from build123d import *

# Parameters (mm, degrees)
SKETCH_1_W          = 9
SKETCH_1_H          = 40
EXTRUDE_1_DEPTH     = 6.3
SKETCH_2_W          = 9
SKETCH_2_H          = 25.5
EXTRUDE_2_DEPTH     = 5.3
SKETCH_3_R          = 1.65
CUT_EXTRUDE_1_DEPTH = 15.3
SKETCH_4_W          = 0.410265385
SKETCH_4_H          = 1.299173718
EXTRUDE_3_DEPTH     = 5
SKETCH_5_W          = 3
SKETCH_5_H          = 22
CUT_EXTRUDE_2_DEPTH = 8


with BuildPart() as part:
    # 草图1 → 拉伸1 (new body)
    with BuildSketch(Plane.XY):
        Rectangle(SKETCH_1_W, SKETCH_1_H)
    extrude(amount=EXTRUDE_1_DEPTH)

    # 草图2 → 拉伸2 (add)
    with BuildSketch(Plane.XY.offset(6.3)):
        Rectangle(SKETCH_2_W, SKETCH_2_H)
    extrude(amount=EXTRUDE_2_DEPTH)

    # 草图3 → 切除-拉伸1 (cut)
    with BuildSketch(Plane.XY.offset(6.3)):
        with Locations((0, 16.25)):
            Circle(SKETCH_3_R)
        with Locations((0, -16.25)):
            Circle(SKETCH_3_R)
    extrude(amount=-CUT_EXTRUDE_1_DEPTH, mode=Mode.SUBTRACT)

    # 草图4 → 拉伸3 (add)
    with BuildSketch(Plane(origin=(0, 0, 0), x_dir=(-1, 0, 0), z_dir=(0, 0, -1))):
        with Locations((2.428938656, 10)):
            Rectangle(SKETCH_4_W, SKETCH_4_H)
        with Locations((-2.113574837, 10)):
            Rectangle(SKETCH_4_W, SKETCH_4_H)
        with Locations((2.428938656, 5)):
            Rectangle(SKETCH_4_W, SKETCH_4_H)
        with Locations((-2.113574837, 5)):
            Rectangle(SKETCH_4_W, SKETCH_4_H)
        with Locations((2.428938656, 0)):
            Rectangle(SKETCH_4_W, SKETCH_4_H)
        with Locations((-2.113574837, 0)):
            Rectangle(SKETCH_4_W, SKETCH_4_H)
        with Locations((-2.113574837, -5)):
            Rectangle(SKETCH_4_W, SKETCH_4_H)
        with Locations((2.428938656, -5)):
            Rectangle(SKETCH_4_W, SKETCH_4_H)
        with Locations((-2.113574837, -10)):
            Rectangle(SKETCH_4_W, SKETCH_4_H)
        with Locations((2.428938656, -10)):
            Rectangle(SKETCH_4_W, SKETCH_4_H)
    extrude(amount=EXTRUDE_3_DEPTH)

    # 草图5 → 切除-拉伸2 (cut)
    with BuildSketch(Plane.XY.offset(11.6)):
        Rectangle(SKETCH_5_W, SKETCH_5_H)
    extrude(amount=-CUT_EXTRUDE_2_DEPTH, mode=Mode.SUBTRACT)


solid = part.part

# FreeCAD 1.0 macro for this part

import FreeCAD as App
import Part
import Sketcher
Q = App.Units.Quantity

doc = App.newDocument("Part")
body = doc.addObject("PartDesign::Body", "Body")

sketch1 = body.newObject("Sketcher::SketchObject", "Sketch")
sketch1.AttachmentSupport = (doc.getObject("XY_Plane"), [""])
sketch1.MapMode = "FlatFace"
sketch1.addGeometry([
    Part.LineSegment(App.Vector(-4, 20, 0), App.Vector(-4, -20, 0)),
    Part.LineSegment(App.Vector(-4, -20, 0), App.Vector(4, -20, 0)),
    Part.LineSegment(App.Vector(4, -20, 0), App.Vector(4, 20, 0)),
    Part.LineSegment(App.Vector(4, 20, 0), App.Vector(-4, 20, 0)),
], False)
sketch1.addConstraint([
    Sketcher.Constraint("Coincident", 0, 2, 1, 1),
    Sketcher.Constraint("Coincident", 1, 2, 2, 1),
    Sketcher.Constraint("Coincident", 2, 2, 3, 1),
    Sketcher.Constraint("Coincident", 3, 2, 0, 1),
    Sketcher.Constraint("Vertical", 0),
    Sketcher.Constraint("Horizontal", 1),
    Sketcher.Constraint("Vertical", 2),
    Sketcher.Constraint("Horizontal", 3),
    Sketcher.Constraint("Symmetric", 0, 2, 2, 2, -1, 1),
    Sketcher.Constraint("DistanceX", 1, 1, 1, 2, Q("9 mm")),
    Sketcher.Constraint("DistanceY", 0, 2, 0, 1, Q("40 mm")),
])
pad1 = body.newObject("PartDesign::Pad", "Pad")
pad1.Profile = sketch1
pad1.Length = 6.3

sketch2 = body.newObject("Sketcher::SketchObject", "Sketch001")
sketch2.AttachmentSupport = (doc.getObject("XY_Plane"), [""])
sketch2.MapMode = "FlatFace"
sketch2.AttachmentOffset = App.Placement(App.Vector(0, 0, 6.3), App.Rotation())
sketch2.addGeometry([
    Part.LineSegment(App.Vector(-4, 13, 0), App.Vector(-4, -13, 0)),
    Part.LineSegment(App.Vector(-4, -13, 0), App.Vector(4, -13, 0)),
    Part.LineSegment(App.Vector(4, -13, 0), App.Vector(4, 13, 0)),
    Part.LineSegment(App.Vector(4, 13, 0), App.Vector(-4, 13, 0)),
], False)
sketch2.addConstraint([
    Sketcher.Constraint("Coincident", 0, 2, 1, 1),
    Sketcher.Constraint("Coincident", 1, 2, 2, 1),
    Sketcher.Constraint("Coincident", 2, 2, 3, 1),
    Sketcher.Constraint("Coincident", 3, 2, 0, 1),
    Sketcher.Constraint("Vertical", 0),
    Sketcher.Constraint("Horizontal", 1),
    Sketcher.Constraint("Vertical", 2),
    Sketcher.Constraint("Horizontal", 3),
    Sketcher.Constraint("Symmetric", 0, 2, 2, 2, -1, 1),
    Sketcher.Constraint("DistanceX", 1, 1, 1, 2, Q("9 mm")),
    Sketcher.Constraint("DistanceY", 0, 2, 0, 1, Q("25.5 mm")),
])
pad2 = body.newObject("PartDesign::Pad", "Pad001")
pad2.Profile = sketch2
pad2.Length = 5.3

sketch3 = body.newObject("Sketcher::SketchObject", "Sketch002")
sketch3.AttachmentSupport = (doc.getObject("XY_Plane"), [""])
sketch3.MapMode = "FlatFace"
sketch3.AttachmentOffset = App.Placement(App.Vector(0, 0, 6.3), App.Rotation())
sketch3.addGeometry([
    Part.Circle(App.Vector(0, 16.2, 0), App.Vector(0, 0, 1), 1.6),
    Part.Circle(App.Vector(0, -16.2, 0), App.Vector(0, 0, 1), 1.6),
], False)
sketch3.addConstraint([
    Sketcher.Constraint("Equal", 0, 1),
    Sketcher.Constraint("Symmetric", 0, 3, 1, 3, -1, 1),
    Sketcher.Constraint("PointOnObject", 0, 3, -2),
    Sketcher.Constraint("Diameter", 0, Q("3.3 mm")),
    Sketcher.Constraint("DistanceY", 1, 3, 0, 3, Q("32.5 mm")),
])
pocket1 = body.newObject("PartDesign::Pocket", "Pocket")
pocket1.Profile = sketch3
pocket1.Length = 15.3

sketch4 = body.newObject("Sketcher::SketchObject", "Sketch003")
sketch4.AttachmentSupport = (doc.getObject("XY_Plane"), [""])
sketch4.MapMode = "FlatFace"
sketch4.addGeometry([
    Part.LineSegment(App.Vector(-2.22, 10.65, 0), App.Vector(-2.22, 9.35, 0)),
    Part.LineSegment(App.Vector(-2.22, 9.35, 0), App.Vector(-2.63, 9.35, 0)),
    Part.LineSegment(App.Vector(-2.63, 9.35, 0), App.Vector(-2.63, 10.65, 0)),
    Part.LineSegment(App.Vector(-2.63, 10.65, 0), App.Vector(-2.22, 10.65, 0)),
    Part.LineSegment(App.Vector(2.32, 10.65, 0), App.Vector(2.32, 9.35, 0)),
    Part.LineSegment(App.Vector(2.32, 9.35, 0), App.Vector(1.91, 9.35, 0)),
    Part.LineSegment(App.Vector(1.91, 9.35, 0), App.Vector(1.91, 10.65, 0)),
    Part.LineSegment(App.Vector(1.91, 10.65, 0), App.Vector(2.32, 10.65, 0)),
    Part.LineSegment(App.Vector(-2.22, 5.65, 0), App.Vector(-2.22, 4.35, 0)),
    Part.LineSegment(App.Vector(-2.22, 4.35, 0), App.Vector(-2.63, 4.35, 0)),
    Part.LineSegment(App.Vector(-2.63, 4.35, 0), App.Vector(-2.63, 5.65, 0)),
    Part.LineSegment(App.Vector(-2.63, 5.65, 0), App.Vector(-2.22, 5.65, 0)),
    Part.LineSegment(App.Vector(2.32, 5.65, 0), App.Vector(2.32, 4.35, 0)),
    Part.LineSegment(App.Vector(2.32, 4.35, 0), App.Vector(1.91, 4.35, 0)),
    Part.LineSegment(App.Vector(1.91, 4.35, 0), App.Vector(1.91, 5.65, 0)),
    Part.LineSegment(App.Vector(1.91, 5.65, 0), App.Vector(2.32, 5.65, 0)),
    Part.LineSegment(App.Vector(-2.22, 0.65, 0), App.Vector(-2.22, -0.65, 0)),
    Part.LineSegment(App.Vector(-2.22, -0.65, 0), App.Vector(-2.63, -0.65, 0)),
    Part.LineSegment(App.Vector(-2.63, -0.65, 0), App.Vector(-2.63, 0.65, 0)),
    Part.LineSegment(App.Vector(-2.63, 0.65, 0), App.Vector(-2.22, 0.65, 0)),
    Part.LineSegment(App.Vector(2.32, 0.65, 0), App.Vector(2.32, -0.65, 0)),
    Part.LineSegment(App.Vector(2.32, -0.65, 0), App.Vector(1.91, -0.65, 0)),
    Part.LineSegment(App.Vector(1.91, -0.65, 0), App.Vector(1.91, 0.65, 0)),
    Part.LineSegment(App.Vector(1.91, 0.65, 0), App.Vector(2.32, 0.65, 0)),
    Part.LineSegment(App.Vector(2.32, -4.35, 0), App.Vector(2.32, -5.65, 0)),
    Part.LineSegment(App.Vector(2.32, -5.65, 0), App.Vector(1.91, -5.65, 0)),
    Part.LineSegment(App.Vector(1.91, -5.65, 0), App.Vector(1.91, -4.35, 0)),
    Part.LineSegment(App.Vector(1.91, -4.35, 0), App.Vector(2.32, -4.35, 0)),
    Part.LineSegment(App.Vector(-2.22, -4.35, 0), App.Vector(-2.22, -5.65, 0)),
    Part.LineSegment(App.Vector(-2.22, -5.65, 0), App.Vector(-2.63, -5.65, 0)),
    Part.LineSegment(App.Vector(-2.63, -5.65, 0), App.Vector(-2.63, -4.35, 0)),
    Part.LineSegment(App.Vector(-2.63, -4.35, 0), App.Vector(-2.22, -4.35, 0)),
    Part.LineSegment(App.Vector(2.32, -9.35, 0), App.Vector(2.32, -10.65, 0)),
    Part.LineSegment(App.Vector(2.32, -10.65, 0), App.Vector(1.91, -10.65, 0)),
    Part.LineSegment(App.Vector(1.91, -10.65, 0), App.Vector(1.91, -9.35, 0)),
    Part.LineSegment(App.Vector(1.91, -9.35, 0), App.Vector(2.32, -9.35, 0)),
    Part.LineSegment(App.Vector(-2.22, -9.35, 0), App.Vector(-2.22, -10.65, 0)),
    Part.LineSegment(App.Vector(-2.22, -10.65, 0), App.Vector(-2.63, -10.65, 0)),
    Part.LineSegment(App.Vector(-2.63, -10.65, 0), App.Vector(-2.63, -9.35, 0)),
    Part.LineSegment(App.Vector(-2.63, -9.35, 0), App.Vector(-2.22, -9.35, 0)),
], False)
sketch4.addConstraint([
    Sketcher.Constraint("Coincident", 0, 2, 1, 1),
    Sketcher.Constraint("Coincident", 1, 2, 2, 1),
    Sketcher.Constraint("Coincident", 2, 2, 3, 1),
    Sketcher.Constraint("Coincident", 3, 2, 0, 1),
    Sketcher.Constraint("Coincident", 4, 2, 5, 1),
    Sketcher.Constraint("Coincident", 5, 2, 6, 1),
    Sketcher.Constraint("Coincident", 6, 2, 7, 1),
    Sketcher.Constraint("Coincident", 7, 2, 4, 1),
    Sketcher.Constraint("Coincident", 8, 2, 9, 1),
    Sketcher.Constraint("Coincident", 9, 2, 10, 1),
    Sketcher.Constraint("Coincident", 10, 2, 11, 1),
    Sketcher.Constraint("Coincident", 11, 2, 8, 1),
    Sketcher.Constraint("Coincident", 12, 2, 13, 1),
    Sketcher.Constraint("Coincident", 13, 2, 14, 1),
    Sketcher.Constraint("Coincident", 14, 2, 15, 1),
    Sketcher.Constraint("Coincident", 15, 2, 12, 1),
    Sketcher.Constraint("Coincident", 16, 2, 17, 1),
    Sketcher.Constraint("Coincident", 17, 2, 18, 1),
    Sketcher.Constraint("Coincident", 18, 2, 19, 1),
    Sketcher.Constraint("Coincident", 19, 2, 16, 1),
    Sketcher.Constraint("Coincident", 20, 2, 21, 1),
    Sketcher.Constraint("Coincident", 21, 2, 22, 1),
    Sketcher.Constraint("Coincident", 22, 2, 23, 1),
    Sketcher.Constraint("Coincident", 23, 2, 20, 1),
    Sketcher.Constraint("Coincident", 24, 2, 25, 1),
    Sketcher.Constraint("Coincident", 25, 2, 26, 1),
    Sketcher.Constraint("Coincident", 26, 2, 27, 1),
    Sketcher.Constraint("Coincident", 27, 2, 24, 1),
    Sketcher.Constraint("Coincident", 28, 2, 29, 1),
    Sketcher.Constraint("Coincident", 29, 2, 30, 1),
    Sketcher.Constraint("Coincident", 30, 2, 31, 1),
    Sketcher.Constraint("Coincident", 31, 2, 28, 1),
    Sketcher.Constraint("Coincident", 32, 2, 33, 1),
    Sketcher.Constraint("Coincident", 33, 2, 34, 1),
    Sketcher.Constraint("Coincident", 34, 2, 35, 1),
    Sketcher.Constraint("Coincident", 35, 2, 32, 1),
    Sketcher.Constraint("Coincident", 36, 2, 37, 1),
    Sketcher.Constraint("Coincident", 37, 2, 38, 1),
    Sketcher.Constraint("Coincident", 38, 2, 39, 1),
    Sketcher.Constraint("Coincident", 39, 2, 36, 1),
    Sketcher.Constraint("Vertical", 0),
    Sketcher.Constraint("Horizontal", 1),
    Sketcher.Constraint("Vertical", 2),
    Sketcher.Constraint("Horizontal", 3),
    Sketcher.Constraint("Vertical", 4),
    Sketcher.Constraint("Horizontal", 5),
    Sketcher.Constraint("Vertical", 6),
    Sketcher.Constraint("Horizontal", 7),
    Sketcher.Constraint("Vertical", 8),
    Sketcher.Constraint("Horizontal", 9),
    Sketcher.Constraint("Vertical", 10),
    Sketcher.Constraint("Horizontal", 11),
    Sketcher.Constraint("Vertical", 12),
    Sketcher.Constraint("Horizontal", 13),
    Sketcher.Constraint("Vertical", 14),
    Sketcher.Constraint("Horizontal", 15),
    Sketcher.Constraint("Vertical", 16),
    Sketcher.Constraint("Horizontal", 17),
    Sketcher.Constraint("Vertical", 18),
    Sketcher.Constraint("Horizontal", 19),
    Sketcher.Constraint("Vertical", 20),
    Sketcher.Constraint("Horizontal", 21),
    Sketcher.Constraint("Vertical", 22),
    Sketcher.Constraint("Horizontal", 23),
    Sketcher.Constraint("Vertical", 24),
    Sketcher.Constraint("Horizontal", 25),
    Sketcher.Constraint("Vertical", 26),
    Sketcher.Constraint("Horizontal", 27),
    Sketcher.Constraint("Vertical", 28),
    Sketcher.Constraint("Horizontal", 29),
    Sketcher.Constraint("Vertical", 30),
    Sketcher.Constraint("Horizontal", 31),
    Sketcher.Constraint("Vertical", 32),
    Sketcher.Constraint("Horizontal", 33),
    Sketcher.Constraint("Vertical", 34),
    Sketcher.Constraint("Horizontal", 35),
    Sketcher.Constraint("Vertical", 36),
    Sketcher.Constraint("Horizontal", 37),
    Sketcher.Constraint("Vertical", 38),
    Sketcher.Constraint("Horizontal", 39),
    Sketcher.Constraint("Symmetric", 15, 2, 24, 2, -1),
    Sketcher.Constraint("Symmetric", 13, 2, 26, 2, -1),
    Sketcher.Constraint("Symmetric", 11, 2, 28, 2, -1),
    Sketcher.Constraint("Symmetric", 9, 2, 30, 2, -1),
    Sketcher.Constraint("Symmetric", 7, 2, 32, 2, -1),
    Sketcher.Constraint("Symmetric", 5, 2, 34, 2, -1),
    Sketcher.Constraint("Symmetric", 3, 2, 36, 2, -1),
    Sketcher.Constraint("Symmetric", 1, 2, 38, 2, -1),
    Sketcher.Constraint("Horizontal", 1, 2, 4, 2),
    Sketcher.Constraint("Horizontal", 3, 2, 6, 2),
    Sketcher.Constraint("Horizontal", 9, 2, 12, 2),
    Sketcher.Constraint("Horizontal", 11, 2, 14, 2),
    Sketcher.Constraint("Horizontal", 17, 2, 20, 2),
    Sketcher.Constraint("Horizontal", 19, 2, 22, 2),
    Sketcher.Constraint("Vertical", 3, 2, 8, 2),
    Sketcher.Constraint("Vertical", 2, 2, 9, 2),
    Sketcher.Constraint("Vertical", 7, 2, 12, 2),
    Sketcher.Constraint("Vertical", 6, 2, 13, 2),
    Sketcher.Constraint("Vertical", 11, 2, 16, 2),
    Sketcher.Constraint("Vertical", 10, 2, 17, 2),
    Sketcher.Constraint("Vertical", 15, 2, 20, 2),
    Sketcher.Constraint("Vertical", 14, 2, 21, 2),
    Sketcher.Constraint("Equal", 3, 5),
    Sketcher.Constraint("Equal", 6, 8),
    Sketcher.Constraint("Equal", 14, 16),
    Sketcher.Constraint("DistanceY", 8, 2, 0, 2, Q("5 mm")),
    Sketcher.Constraint("DistanceY", 16, 2, 8, 2, Q("5 mm")),
    Sketcher.Constraint("DistanceY", 24, 2, 20, 2, Q("5 mm")),
    Sketcher.Constraint("DistanceX", 1, 2, 1, 1, Q("0.410265 mm")),
    Sketcher.Constraint("DistanceY", 0, 2, 0, 1, Q("1.299174 mm")),
    Sketcher.Constraint("DistanceX", 1, 2, -1, 1, Q("2.634071 mm")),
    Sketcher.Constraint("DistanceX", 1, 2, 4, 2, Q("4.952779 mm")),
])
pad3 = body.newObject("PartDesign::Pad", "Pad002")
pad3.Profile = sketch4
pad3.Length = 5
pad3.Reversed = True

sketch5 = body.newObject("Sketcher::SketchObject", "Sketch004")
sketch5.AttachmentSupport = (doc.getObject("XY_Plane"), [""])
sketch5.MapMode = "FlatFace"
sketch5.AttachmentOffset = App.Placement(App.Vector(0, 0, 11.6), App.Rotation())
sketch5.addGeometry([
    Part.LineSegment(App.Vector(-1.5, 11, 0), App.Vector(-1.5, -11, 0)),
    Part.LineSegment(App.Vector(-1.5, -11, 0), App.Vector(1.5, -11, 0)),
    Part.LineSegment(App.Vector(1.5, -11, 0), App.Vector(1.5, 11, 0)),
    Part.LineSegment(App.Vector(1.5, 11, 0), App.Vector(-1.5, 11, 0)),
], False)
sketch5.addConstraint([
    Sketcher.Constraint("Coincident", 0, 2, 1, 1),
    Sketcher.Constraint("Coincident", 1, 2, 2, 1),
    Sketcher.Constraint("Coincident", 2, 2, 3, 1),
    Sketcher.Constraint("Coincident", 3, 2, 0, 1),
    Sketcher.Constraint("Vertical", 0),
    Sketcher.Constraint("Horizontal", 1),
    Sketcher.Constraint("Vertical", 2),
    Sketcher.Constraint("Horizontal", 3),
    Sketcher.Constraint("Symmetric", 0, 2, 2, 2, -1, 1),
    Sketcher.Constraint("DistanceX", 1, 1, 1, 2, Q("3 mm")),
    Sketcher.Constraint("DistanceY", 0, 2, 0, 1, Q("22 mm")),
])
pocket2 = body.newObject("PartDesign::Pocket", "Pocket001")
pocket2.Profile = sketch5
pocket2.Length = 8

doc.recompute()
